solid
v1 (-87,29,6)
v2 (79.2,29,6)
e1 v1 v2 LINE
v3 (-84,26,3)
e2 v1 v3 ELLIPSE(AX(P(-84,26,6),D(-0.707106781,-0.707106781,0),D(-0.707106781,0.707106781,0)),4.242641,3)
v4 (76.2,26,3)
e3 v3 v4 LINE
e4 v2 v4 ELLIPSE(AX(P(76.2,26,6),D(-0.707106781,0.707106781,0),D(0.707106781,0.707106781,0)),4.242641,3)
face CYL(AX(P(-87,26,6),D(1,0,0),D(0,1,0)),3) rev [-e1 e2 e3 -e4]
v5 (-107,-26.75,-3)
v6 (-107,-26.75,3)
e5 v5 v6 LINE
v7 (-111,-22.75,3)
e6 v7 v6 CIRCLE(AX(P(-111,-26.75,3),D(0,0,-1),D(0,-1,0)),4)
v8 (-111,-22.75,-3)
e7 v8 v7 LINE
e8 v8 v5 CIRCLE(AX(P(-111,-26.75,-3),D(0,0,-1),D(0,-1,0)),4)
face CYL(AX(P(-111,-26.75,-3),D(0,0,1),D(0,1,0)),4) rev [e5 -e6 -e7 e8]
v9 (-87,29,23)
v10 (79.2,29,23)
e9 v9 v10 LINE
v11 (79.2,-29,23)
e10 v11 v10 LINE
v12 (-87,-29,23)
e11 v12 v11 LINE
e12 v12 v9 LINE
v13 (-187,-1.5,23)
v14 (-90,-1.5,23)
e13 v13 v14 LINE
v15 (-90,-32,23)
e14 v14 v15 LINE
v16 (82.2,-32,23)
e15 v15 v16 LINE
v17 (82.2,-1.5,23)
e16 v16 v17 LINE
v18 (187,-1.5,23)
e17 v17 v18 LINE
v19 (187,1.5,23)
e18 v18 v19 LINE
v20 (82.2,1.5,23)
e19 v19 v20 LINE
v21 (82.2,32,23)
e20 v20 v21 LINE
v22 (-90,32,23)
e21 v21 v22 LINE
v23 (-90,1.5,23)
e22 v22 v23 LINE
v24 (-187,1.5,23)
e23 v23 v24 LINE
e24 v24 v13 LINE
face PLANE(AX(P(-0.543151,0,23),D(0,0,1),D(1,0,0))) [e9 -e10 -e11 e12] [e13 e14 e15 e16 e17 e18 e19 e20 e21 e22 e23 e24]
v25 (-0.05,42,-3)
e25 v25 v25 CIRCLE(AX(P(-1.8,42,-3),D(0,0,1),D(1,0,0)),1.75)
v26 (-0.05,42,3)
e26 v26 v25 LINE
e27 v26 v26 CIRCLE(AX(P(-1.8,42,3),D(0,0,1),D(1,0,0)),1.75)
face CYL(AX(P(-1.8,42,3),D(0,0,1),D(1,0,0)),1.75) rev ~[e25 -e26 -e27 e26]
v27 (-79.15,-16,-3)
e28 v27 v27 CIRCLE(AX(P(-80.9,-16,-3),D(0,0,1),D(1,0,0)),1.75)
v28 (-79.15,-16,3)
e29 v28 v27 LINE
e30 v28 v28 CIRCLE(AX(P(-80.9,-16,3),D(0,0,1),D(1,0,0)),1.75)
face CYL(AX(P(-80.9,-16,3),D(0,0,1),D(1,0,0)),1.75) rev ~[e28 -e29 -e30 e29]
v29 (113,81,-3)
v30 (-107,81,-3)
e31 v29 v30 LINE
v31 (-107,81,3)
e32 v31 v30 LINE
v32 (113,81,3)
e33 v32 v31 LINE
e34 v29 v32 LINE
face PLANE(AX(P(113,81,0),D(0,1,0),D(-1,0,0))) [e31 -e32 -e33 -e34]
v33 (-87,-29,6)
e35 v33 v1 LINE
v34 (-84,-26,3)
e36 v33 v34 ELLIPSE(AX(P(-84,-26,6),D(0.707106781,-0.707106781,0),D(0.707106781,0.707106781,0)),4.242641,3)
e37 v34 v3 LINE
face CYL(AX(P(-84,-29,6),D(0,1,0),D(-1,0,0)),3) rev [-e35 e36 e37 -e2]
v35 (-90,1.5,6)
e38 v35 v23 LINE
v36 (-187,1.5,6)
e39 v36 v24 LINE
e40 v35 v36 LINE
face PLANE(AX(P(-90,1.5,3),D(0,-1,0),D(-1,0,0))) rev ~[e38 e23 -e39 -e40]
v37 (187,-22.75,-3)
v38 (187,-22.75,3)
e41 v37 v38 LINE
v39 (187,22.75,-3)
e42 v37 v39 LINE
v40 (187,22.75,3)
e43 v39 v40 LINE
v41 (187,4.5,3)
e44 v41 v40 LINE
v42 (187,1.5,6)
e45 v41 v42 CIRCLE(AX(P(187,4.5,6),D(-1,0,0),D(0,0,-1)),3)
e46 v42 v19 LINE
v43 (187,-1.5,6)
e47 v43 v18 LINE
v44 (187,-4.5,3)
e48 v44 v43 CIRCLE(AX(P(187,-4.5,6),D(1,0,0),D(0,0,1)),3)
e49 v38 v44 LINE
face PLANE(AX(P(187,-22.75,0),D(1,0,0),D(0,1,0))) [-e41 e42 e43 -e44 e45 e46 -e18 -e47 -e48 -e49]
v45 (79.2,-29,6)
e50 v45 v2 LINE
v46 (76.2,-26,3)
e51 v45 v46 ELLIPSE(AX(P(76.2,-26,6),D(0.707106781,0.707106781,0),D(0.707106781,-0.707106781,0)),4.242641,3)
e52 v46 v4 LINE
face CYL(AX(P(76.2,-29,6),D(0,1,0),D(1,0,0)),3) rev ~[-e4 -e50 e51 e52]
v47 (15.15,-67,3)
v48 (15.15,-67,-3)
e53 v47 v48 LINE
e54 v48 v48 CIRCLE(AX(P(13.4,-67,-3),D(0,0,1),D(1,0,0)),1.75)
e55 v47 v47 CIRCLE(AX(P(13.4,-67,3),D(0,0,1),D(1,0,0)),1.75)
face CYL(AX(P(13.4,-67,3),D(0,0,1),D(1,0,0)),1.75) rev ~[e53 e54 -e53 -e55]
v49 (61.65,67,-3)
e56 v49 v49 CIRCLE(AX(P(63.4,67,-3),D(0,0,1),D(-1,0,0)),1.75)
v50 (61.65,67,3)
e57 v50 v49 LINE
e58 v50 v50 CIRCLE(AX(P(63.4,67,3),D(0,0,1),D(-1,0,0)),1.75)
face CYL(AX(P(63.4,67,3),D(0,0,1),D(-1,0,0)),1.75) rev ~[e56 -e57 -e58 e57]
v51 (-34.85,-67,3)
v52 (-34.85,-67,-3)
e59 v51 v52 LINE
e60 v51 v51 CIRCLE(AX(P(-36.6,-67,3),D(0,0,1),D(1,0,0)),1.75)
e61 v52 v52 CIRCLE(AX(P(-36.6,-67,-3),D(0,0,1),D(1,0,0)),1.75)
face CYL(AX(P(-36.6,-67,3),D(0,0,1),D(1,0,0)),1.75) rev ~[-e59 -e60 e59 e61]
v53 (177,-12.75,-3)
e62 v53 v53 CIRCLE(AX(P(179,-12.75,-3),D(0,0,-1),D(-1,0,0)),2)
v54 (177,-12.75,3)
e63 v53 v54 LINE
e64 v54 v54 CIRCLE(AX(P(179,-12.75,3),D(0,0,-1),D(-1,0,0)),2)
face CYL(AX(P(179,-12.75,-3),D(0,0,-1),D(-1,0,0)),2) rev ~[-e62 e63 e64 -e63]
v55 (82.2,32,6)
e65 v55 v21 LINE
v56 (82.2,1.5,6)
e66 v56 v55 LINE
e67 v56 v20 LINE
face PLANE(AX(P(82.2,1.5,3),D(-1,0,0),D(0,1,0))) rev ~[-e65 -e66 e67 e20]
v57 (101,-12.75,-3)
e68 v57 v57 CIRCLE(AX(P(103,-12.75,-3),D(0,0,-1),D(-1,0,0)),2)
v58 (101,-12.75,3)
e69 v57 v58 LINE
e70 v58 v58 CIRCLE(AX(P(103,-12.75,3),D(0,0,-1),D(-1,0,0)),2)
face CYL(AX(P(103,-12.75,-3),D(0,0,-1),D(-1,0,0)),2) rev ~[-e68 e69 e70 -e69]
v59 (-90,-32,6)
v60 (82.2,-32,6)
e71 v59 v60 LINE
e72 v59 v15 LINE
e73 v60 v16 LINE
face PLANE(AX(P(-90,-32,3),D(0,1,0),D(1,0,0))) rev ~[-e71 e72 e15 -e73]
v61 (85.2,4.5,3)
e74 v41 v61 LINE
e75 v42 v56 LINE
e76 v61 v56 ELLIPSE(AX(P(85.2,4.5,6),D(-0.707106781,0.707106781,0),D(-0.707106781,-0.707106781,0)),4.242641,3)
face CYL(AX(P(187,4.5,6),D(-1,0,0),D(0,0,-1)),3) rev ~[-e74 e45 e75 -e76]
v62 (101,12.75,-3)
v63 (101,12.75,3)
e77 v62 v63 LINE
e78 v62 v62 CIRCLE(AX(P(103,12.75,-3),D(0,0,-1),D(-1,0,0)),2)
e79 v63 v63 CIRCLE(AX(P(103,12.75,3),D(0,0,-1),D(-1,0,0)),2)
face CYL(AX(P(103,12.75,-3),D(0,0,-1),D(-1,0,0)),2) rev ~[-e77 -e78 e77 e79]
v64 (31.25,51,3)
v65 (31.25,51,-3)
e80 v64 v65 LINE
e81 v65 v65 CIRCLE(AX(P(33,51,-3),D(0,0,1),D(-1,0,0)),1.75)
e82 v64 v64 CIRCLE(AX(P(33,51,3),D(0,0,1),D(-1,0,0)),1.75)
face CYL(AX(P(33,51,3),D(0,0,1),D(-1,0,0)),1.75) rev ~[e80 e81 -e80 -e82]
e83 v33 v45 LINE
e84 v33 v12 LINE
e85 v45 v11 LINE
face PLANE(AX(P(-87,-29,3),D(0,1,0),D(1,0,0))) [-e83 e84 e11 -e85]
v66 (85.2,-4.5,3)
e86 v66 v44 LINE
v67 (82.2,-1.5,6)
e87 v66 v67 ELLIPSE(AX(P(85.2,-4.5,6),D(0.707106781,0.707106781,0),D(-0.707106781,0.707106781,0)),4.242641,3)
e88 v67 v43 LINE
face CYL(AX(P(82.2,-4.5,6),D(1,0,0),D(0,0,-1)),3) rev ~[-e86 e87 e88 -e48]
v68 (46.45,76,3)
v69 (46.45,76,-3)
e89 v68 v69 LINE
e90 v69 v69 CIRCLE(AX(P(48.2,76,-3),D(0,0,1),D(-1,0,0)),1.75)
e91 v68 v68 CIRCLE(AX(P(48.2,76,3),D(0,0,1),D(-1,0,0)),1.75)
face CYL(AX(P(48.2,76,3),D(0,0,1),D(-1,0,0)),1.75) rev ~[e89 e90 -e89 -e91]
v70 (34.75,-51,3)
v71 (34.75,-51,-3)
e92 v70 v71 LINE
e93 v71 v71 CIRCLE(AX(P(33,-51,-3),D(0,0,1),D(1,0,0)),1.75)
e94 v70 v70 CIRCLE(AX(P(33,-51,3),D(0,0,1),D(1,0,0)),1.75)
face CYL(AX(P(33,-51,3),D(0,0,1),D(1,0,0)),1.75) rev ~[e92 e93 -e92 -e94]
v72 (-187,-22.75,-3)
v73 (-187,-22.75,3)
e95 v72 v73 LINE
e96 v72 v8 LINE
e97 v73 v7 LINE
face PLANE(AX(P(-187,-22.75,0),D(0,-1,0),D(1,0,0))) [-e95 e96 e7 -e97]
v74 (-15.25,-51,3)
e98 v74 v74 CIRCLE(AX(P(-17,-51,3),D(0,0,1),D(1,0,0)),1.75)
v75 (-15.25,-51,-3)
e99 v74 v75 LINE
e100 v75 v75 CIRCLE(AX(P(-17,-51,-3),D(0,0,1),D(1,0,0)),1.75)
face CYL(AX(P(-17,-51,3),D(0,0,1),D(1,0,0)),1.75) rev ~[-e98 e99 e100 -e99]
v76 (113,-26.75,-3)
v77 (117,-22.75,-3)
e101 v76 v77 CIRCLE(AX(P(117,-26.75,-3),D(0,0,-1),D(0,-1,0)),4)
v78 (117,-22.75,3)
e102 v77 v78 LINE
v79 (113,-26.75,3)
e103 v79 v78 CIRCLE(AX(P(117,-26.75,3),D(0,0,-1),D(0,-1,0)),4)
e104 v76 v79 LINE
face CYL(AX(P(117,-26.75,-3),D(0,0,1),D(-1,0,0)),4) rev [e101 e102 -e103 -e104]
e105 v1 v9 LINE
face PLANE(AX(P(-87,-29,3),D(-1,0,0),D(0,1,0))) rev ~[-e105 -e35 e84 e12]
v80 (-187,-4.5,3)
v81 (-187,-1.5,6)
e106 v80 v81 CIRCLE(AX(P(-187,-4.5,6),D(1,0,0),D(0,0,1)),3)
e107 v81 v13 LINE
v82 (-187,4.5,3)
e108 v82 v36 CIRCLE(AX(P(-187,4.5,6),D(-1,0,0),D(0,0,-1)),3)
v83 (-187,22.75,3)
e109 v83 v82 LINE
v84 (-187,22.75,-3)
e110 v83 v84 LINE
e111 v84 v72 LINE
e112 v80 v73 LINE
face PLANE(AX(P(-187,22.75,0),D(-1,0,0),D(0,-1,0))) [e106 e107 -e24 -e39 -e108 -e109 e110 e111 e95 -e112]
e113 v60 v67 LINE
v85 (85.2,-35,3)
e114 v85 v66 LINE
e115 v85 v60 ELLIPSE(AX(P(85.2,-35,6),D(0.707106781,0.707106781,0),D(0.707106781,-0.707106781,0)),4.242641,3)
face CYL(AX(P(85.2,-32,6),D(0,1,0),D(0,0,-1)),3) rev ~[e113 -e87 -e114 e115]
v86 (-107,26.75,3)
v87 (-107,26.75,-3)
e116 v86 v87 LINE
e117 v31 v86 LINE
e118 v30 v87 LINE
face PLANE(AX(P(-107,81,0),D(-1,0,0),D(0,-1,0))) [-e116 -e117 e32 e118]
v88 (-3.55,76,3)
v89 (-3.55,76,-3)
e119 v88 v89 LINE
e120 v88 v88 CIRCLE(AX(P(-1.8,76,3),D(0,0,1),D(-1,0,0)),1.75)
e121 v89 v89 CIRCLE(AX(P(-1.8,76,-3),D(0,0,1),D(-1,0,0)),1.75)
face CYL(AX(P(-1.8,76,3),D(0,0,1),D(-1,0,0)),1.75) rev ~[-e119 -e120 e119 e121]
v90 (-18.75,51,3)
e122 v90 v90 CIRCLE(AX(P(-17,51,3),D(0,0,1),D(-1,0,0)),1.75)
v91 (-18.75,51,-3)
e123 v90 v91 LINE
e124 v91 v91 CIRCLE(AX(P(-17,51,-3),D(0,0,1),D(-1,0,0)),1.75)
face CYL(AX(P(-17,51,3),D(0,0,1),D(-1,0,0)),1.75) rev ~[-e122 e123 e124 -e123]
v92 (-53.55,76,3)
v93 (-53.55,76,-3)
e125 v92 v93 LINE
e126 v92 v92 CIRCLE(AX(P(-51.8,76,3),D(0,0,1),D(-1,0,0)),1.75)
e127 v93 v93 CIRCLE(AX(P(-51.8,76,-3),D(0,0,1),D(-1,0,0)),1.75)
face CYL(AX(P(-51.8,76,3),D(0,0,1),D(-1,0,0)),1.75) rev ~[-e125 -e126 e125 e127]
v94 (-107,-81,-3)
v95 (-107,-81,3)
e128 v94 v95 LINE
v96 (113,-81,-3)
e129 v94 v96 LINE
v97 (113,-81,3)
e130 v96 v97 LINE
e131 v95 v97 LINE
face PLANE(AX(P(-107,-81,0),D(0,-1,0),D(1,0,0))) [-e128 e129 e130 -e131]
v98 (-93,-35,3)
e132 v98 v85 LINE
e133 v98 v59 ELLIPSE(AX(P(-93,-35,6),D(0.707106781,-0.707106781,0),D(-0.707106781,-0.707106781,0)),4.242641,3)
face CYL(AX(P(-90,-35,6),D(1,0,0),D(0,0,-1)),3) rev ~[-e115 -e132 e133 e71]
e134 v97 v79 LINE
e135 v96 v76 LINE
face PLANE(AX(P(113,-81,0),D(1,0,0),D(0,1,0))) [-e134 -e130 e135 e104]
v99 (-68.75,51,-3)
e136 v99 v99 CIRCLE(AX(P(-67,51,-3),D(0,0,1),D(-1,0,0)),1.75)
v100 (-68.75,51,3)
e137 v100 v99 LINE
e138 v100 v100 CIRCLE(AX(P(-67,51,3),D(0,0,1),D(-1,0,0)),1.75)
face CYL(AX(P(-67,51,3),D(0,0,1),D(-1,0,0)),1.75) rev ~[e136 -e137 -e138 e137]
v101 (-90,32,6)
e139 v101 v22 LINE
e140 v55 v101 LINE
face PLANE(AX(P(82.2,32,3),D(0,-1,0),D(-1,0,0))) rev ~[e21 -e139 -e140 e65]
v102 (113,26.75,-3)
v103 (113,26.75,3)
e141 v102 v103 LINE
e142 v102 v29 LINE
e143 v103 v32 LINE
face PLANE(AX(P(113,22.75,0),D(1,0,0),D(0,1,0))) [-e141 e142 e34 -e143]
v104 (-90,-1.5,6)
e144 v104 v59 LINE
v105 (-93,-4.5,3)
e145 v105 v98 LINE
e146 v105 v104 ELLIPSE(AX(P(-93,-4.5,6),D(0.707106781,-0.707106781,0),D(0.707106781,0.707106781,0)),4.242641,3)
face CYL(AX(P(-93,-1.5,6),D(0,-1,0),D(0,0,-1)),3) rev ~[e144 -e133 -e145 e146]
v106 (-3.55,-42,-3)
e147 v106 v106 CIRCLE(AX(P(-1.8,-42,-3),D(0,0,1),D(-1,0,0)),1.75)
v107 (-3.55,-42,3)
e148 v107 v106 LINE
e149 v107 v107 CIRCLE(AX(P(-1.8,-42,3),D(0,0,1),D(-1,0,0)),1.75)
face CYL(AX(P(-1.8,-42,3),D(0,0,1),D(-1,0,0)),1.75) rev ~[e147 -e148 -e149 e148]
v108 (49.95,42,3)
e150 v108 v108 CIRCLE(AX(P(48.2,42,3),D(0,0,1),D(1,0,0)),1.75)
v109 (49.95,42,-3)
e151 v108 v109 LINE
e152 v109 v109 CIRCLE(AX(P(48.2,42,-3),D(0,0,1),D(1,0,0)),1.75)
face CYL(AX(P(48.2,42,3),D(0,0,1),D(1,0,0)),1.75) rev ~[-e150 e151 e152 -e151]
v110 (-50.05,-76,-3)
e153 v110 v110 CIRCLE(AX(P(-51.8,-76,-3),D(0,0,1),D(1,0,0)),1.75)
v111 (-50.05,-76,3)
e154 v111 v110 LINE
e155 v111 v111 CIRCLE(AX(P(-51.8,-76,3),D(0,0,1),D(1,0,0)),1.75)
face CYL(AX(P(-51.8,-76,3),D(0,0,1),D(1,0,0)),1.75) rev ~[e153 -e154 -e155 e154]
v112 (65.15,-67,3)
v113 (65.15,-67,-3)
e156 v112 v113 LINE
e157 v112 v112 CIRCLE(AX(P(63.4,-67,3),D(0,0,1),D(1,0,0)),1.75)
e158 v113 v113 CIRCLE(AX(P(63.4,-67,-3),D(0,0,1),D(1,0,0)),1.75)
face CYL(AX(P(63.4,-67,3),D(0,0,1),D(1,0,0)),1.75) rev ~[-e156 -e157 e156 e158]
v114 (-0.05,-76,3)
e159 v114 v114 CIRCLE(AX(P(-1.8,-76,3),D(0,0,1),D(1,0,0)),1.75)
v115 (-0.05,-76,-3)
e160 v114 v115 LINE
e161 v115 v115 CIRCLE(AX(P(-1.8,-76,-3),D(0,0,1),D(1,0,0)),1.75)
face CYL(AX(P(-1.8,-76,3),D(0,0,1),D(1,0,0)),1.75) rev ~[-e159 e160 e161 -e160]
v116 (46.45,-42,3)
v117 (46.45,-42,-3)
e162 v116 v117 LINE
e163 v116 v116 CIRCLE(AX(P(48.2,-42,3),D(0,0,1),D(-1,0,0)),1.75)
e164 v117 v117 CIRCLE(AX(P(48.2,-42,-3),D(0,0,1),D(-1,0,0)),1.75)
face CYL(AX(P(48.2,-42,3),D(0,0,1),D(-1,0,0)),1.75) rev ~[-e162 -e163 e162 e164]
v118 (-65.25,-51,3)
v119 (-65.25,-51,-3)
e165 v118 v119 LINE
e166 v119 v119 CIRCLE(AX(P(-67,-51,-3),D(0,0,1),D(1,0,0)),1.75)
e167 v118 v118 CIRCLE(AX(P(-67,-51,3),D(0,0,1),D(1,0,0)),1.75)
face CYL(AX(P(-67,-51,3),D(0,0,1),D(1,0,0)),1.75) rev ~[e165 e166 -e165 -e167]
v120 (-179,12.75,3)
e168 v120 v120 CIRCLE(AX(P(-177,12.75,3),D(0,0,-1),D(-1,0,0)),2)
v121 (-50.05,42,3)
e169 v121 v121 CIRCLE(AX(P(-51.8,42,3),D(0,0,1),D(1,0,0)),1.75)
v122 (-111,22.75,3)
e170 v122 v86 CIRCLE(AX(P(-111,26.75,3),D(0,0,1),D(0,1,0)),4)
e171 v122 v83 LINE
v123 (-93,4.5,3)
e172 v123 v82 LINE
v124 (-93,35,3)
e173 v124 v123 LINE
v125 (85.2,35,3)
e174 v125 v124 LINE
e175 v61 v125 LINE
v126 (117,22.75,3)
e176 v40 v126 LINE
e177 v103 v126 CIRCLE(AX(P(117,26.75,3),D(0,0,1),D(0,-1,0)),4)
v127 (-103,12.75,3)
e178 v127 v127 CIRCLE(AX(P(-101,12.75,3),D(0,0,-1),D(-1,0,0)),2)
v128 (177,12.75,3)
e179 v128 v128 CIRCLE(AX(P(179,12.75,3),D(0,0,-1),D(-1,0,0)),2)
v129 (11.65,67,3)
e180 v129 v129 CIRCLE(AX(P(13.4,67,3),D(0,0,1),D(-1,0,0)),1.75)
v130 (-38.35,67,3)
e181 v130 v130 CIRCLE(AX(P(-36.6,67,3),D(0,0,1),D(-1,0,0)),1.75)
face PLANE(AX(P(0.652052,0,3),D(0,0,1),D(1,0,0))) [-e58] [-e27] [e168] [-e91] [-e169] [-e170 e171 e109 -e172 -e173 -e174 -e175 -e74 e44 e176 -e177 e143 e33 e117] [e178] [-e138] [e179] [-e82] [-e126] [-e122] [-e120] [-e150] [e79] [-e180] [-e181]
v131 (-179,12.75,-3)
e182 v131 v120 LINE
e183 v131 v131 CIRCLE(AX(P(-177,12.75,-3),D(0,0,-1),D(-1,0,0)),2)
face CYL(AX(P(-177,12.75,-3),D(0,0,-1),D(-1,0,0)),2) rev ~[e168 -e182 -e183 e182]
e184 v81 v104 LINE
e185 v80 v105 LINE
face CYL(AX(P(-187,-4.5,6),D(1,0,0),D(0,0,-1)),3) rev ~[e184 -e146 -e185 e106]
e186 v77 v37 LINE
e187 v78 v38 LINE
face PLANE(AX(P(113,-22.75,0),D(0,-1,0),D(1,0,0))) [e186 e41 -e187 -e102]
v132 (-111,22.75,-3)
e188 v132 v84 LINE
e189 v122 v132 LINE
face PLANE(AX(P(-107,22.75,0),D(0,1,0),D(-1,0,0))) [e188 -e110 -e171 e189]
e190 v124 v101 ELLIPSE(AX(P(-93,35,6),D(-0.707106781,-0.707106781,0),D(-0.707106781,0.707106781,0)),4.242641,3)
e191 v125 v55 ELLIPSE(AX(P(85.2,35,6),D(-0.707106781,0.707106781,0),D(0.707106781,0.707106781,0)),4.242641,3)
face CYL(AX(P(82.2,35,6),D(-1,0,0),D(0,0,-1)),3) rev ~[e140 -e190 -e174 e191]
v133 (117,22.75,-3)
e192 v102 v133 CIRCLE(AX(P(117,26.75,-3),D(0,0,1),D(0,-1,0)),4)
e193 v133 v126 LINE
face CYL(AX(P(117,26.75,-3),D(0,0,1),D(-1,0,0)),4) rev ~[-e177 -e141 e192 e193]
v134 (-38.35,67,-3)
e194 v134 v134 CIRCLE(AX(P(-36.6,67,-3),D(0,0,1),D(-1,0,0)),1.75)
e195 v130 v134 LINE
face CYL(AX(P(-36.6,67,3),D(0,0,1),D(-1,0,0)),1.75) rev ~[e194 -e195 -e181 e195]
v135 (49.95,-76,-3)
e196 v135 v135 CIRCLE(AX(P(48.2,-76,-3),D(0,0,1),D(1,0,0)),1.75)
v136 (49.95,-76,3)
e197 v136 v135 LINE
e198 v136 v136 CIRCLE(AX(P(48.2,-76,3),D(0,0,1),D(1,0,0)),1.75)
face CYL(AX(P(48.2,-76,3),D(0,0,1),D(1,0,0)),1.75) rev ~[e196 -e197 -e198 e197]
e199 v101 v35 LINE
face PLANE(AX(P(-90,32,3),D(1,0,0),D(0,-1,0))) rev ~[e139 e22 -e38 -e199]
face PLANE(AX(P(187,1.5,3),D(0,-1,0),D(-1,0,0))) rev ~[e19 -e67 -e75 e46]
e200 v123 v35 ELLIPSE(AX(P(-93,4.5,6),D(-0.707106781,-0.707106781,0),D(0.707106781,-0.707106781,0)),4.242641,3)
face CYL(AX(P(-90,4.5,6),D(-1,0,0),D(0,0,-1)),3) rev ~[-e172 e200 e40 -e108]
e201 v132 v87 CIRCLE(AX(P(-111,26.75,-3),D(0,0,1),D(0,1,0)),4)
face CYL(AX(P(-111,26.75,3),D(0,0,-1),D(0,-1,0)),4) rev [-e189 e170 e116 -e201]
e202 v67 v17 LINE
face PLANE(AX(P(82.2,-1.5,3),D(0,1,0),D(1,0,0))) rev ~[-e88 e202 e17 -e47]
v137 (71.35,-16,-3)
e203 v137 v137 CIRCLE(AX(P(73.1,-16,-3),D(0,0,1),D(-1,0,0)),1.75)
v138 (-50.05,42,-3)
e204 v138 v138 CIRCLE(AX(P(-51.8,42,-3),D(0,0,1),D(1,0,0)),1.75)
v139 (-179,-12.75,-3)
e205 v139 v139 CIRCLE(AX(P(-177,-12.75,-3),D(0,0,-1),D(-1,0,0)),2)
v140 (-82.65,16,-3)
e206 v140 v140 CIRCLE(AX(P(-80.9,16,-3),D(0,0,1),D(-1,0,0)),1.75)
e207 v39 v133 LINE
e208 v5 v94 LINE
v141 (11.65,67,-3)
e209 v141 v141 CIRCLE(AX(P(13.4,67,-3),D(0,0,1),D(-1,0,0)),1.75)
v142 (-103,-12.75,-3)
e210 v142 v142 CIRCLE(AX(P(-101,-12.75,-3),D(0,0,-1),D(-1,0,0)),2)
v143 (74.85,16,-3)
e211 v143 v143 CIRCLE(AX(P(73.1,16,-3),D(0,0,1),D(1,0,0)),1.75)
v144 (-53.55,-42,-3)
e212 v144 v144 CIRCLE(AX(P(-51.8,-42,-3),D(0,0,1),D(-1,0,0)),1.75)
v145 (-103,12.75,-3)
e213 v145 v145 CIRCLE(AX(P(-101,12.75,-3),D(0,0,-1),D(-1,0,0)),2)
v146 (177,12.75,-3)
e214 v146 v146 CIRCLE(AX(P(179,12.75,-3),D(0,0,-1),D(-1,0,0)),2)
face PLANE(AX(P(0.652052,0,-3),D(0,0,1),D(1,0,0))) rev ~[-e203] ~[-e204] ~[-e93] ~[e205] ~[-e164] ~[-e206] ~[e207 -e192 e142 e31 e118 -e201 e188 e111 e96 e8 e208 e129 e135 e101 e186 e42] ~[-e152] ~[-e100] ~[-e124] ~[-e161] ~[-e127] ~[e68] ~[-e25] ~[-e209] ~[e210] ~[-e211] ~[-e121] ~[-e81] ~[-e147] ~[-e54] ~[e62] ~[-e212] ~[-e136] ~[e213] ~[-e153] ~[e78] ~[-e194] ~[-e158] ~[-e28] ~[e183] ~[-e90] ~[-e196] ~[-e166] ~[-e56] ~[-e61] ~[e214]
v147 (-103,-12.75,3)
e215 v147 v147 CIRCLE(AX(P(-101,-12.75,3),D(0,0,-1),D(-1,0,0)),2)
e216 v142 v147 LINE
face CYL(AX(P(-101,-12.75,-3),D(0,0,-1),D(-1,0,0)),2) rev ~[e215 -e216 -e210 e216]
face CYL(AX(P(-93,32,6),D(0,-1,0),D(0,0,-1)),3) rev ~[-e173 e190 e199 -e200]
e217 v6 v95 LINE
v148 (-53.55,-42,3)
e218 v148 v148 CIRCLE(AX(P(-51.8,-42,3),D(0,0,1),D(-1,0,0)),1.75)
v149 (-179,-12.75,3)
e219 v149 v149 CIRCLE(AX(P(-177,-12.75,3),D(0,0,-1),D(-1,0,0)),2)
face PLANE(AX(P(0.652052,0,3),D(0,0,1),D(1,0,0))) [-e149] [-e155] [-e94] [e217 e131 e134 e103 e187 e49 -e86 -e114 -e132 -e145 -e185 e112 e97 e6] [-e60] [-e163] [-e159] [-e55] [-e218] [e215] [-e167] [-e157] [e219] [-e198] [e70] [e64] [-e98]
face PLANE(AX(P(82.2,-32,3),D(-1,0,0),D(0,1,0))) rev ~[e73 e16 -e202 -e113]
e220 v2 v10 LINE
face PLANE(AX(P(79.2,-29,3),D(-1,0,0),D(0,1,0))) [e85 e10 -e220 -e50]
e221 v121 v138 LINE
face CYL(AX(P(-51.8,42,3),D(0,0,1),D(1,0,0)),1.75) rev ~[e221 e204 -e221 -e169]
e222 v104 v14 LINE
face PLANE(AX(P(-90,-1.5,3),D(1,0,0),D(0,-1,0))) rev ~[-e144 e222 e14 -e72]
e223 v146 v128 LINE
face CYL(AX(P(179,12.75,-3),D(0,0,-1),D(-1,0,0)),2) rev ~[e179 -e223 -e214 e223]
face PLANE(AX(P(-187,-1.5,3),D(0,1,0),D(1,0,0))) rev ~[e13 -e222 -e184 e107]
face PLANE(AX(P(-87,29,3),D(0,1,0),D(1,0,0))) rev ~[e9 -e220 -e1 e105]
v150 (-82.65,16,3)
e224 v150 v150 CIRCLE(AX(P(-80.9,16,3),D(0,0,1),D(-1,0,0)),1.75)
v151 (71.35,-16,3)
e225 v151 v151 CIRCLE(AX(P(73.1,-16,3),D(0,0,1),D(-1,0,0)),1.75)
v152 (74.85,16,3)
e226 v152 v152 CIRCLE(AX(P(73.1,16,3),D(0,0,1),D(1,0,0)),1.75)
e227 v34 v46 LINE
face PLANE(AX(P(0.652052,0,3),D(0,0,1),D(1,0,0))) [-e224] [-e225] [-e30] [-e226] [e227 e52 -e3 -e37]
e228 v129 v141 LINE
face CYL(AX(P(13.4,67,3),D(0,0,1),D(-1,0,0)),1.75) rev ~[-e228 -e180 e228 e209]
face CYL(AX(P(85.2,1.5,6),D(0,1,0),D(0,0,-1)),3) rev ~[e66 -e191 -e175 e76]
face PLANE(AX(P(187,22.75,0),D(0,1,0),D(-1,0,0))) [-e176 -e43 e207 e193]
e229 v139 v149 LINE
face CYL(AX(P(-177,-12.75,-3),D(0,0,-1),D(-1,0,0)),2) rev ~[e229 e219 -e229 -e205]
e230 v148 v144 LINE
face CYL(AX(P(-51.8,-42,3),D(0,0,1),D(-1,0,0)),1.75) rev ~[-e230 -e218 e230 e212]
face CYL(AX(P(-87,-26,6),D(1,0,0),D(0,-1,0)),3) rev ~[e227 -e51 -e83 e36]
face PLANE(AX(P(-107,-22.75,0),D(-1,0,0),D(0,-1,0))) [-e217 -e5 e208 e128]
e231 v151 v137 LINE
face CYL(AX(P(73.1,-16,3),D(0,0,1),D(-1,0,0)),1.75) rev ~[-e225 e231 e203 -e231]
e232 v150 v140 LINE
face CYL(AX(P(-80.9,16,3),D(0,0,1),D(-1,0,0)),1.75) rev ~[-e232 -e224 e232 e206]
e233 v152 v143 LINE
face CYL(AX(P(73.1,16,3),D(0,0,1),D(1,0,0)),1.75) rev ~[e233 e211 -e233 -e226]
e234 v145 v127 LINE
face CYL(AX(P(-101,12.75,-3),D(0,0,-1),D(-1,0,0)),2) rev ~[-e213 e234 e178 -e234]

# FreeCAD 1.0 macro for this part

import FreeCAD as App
import Part
import Sketcher

V = App.Vector


def edges_at(feature, points):
    """Names of the edges that pass closest to the given points."""
    edges = feature.Shape.Edges
    near = lambda p: min(range(len(edges)), key=lambda i: edges[i].distToShape(Part.Vertex(*p))[0])
    return sorted({f"Edge{near(p) + 1}" for p in points})

doc = App.newDocument("Part")
body = doc.addObject("PartDesign::Body", "Body")

sketch1 = body.newObject("Sketcher::SketchObject", "Sketch")
sketch1.AttachmentSupport = (doc.getObject("XY_Plane"), [""])
sketch1.MapMode = "FlatFace"
sketch1.addGeometry([
    Part.LineSegment(V(-187, 23, 0), V(-187, -23, 0)),
    Part.LineSegment(V(-187, -23, 0), V(-107, -23, 0)),
    Part.LineSegment(V(-107, -23, 0), V(-107, -81, 0)),
    Part.LineSegment(V(-107, -81, 0), V(113, -81, 0)),
    Part.LineSegment(V(113, -81, 0), V(113, -23, 0)),
    Part.LineSegment(V(113, -23, 0), V(187, -23, 0)),
    Part.LineSegment(V(187, -23, 0), V(187, 23, 0)),
    Part.LineSegment(V(187, 23, 0), V(113, 23, 0)),
    Part.LineSegment(V(113, 23, 0), V(113, 81, 0)),
    Part.LineSegment(V(113, 81, 0), V(-107, 81, 0)),
    Part.LineSegment(V(-107, 81, 0), V(-107, 23, 0)),
    Part.LineSegment(V(-107, 23, 0), V(-187, 23, 0)),
], False)
sketch1.addConstraint([
    Sketcher.Constraint("Coincident", 0, 2, 1, 1),
    Sketcher.Constraint("Coincident", 1, 2, 2, 1),
    Sketcher.Constraint("Coincident", 2, 2, 3, 1),
    Sketcher.Constraint("Coincident", 3, 2, 4, 1),
    Sketcher.Constraint("Coincident", 4, 2, 5, 1),
    Sketcher.Constraint("Coincident", 5, 2, 6, 1),
    Sketcher.Constraint("Coincident", 6, 2, 7, 1),
    Sketcher.Constraint("Coincident", 7, 2, 8, 1),
    Sketcher.Constraint("Coincident", 8, 2, 9, 1),
    Sketcher.Constraint("Coincident", 9, 2, 10, 1),
    Sketcher.Constraint("Coincident", 10, 2, 11, 1),
    Sketcher.Constraint("Coincident", 11, 2, 0, 1),
    Sketcher.Constraint("Vertical", 0),
    Sketcher.Constraint("Horizontal", 1),
    Sketcher.Constraint("Vertical", 2),
    Sketcher.Constraint("Horizontal", 3),
    Sketcher.Constraint("Vertical", 4),
    Sketcher.Constraint("Horizontal", 5),
    Sketcher.Constraint("Vertical", 6),
    Sketcher.Constraint("Horizontal", 7),
    Sketcher.Constraint("Vertical", 8),
    Sketcher.Constraint("Horizontal", 9),
    Sketcher.Constraint("Vertical", 10),
    Sketcher.Constraint("Horizontal", 11),
    Sketcher.Constraint("Symmetric", 0, 2, 6, 2, -1, 1),
    Sketcher.Constraint("Symmetric", 4, 2, 7, 2, -1),
    Sketcher.Constraint("Symmetric", 2, 2, 9, 2, -1),
    Sketcher.Constraint("Horizontal", 7, 2, 10, 2),
    Sketcher.Constraint("DistanceX", 1, 1, 1, 2, 80.0),
    Sketcher.Constraint("DistanceX", 3, 1, 3, 2, 220.0),
    Sketcher.Constraint("DistanceX", 5, 1, 5, 2, 74.0),
    Sketcher.Constraint("DistanceY", 0, 2, 0, 1, 45.5),
    Sketcher.Constraint("DistanceY", 2, 2, -1, 1, 81.0),
])
pad1 = body.newObject("PartDesign::Pad", "Pad")
pad1.Profile = sketch1
pad1.Length = 6
pad1.Midplane = True

sketch2 = body.newObject("Sketcher::SketchObject", "Sketch001")
sketch2.AttachmentSupport = (doc.getObject("XY_Plane"), [""])
sketch2.MapMode = "FlatFace"
sketch2.AttachmentOffset = App.Placement(V(0, 0, 3), App.Rotation())
sketch2.addGeometry([
    Part.LineSegment(V(-187, -1.5, 0), V(-90, -1.5, 0)),
    Part.LineSegment(V(-90, -1.5, 0), V(-90, -32, 0)),
    Part.LineSegment(V(-90, -32, 0), V(82.2, -32, 0)),
    Part.LineSegment(V(82.2, -32, 0), V(82.2, -1.5, 0)),
    Part.LineSegment(V(82.2, -1.5, 0), V(187, -1.5, 0)),
    Part.LineSegment(V(187, -1.5, 0), V(187, 1.5, 0)),
    Part.LineSegment(V(187, 1.5, 0), V(82.2, 1.5, 0)),
    Part.LineSegment(V(82.2, 1.5, 0), V(82.2, 32, 0)),
    Part.LineSegment(V(82.2, 32, 0), V(-90, 32, 0)),
    Part.LineSegment(V(-90, 32, 0), V(-90, 1.5, 0)),
    Part.LineSegment(V(-90, 1.5, 0), V(-187, 1.5, 0)),
    Part.LineSegment(V(-187, 1.5, 0), V(-187, -1.5, 0)),
    Part.LineSegment(V(79.2, -29, 0), V(-87, -29, 0)),
    Part.LineSegment(V(-87, -29, 0), V(-87, 29, 0)),
    Part.LineSegment(V(-87, 29, 0), V(79.2, 29, 0)),
    Part.LineSegment(V(79.2, 29, 0), V(79.2, -29, 0)),
], False)
sketch2.addConstraint([
    Sketcher.Constraint("Coincident", 0, 2, 1, 1),
    Sketcher.Constraint("Coincident", 1, 2, 2, 1),
    Sketcher.Constraint("Coincident", 2, 2, 3, 1),
    Sketcher.Constraint("Coincident", 3, 2, 4, 1),
    Sketcher.Constraint("Coincident", 4, 2, 5, 1),
    Sketcher.Constraint("Coincident", 5, 2, 6, 1),
    Sketcher.Constraint("Coincident", 6, 2, 7, 1),
    Sketcher.Constraint("Coincident", 7, 2, 8, 1),
    Sketcher.Constraint("Coincident", 8, 2, 9, 1),
    Sketcher.Constraint("Coincident", 9, 2, 10, 1),
    Sketcher.Constraint("Coincident", 10, 2, 11, 1),
    Sketcher.Constraint("Coincident", 11, 2, 0, 1),
    Sketcher.Constraint("Coincident", 12, 2, 13, 1),
    Sketcher.Constraint("Coincident", 13, 2, 14, 1),
    Sketcher.Constraint("Coincident", 14, 2, 15, 1),
    Sketcher.Constraint("Coincident", 15, 2, 12, 1),
    Sketcher.Constraint("Horizontal", 0),
    Sketcher.Constraint("Vertical", 1),
    Sketcher.Constraint("Horizontal", 2),
    Sketcher.Constraint("Vertical", 3),
    Sketcher.Constraint("Horizontal", 4),
    Sketcher.Constraint("Vertical", 5),
    Sketcher.Constraint("Horizontal", 6),
    Sketcher.Constraint("Vertical", 7),
    Sketcher.Constraint("Horizontal", 8),
    Sketcher.Constraint("Vertical", 9),
    Sketcher.Constraint("Horizontal", 10),
    Sketcher.Constraint("Vertical", 11),
    Sketcher.Constraint("Horizontal", 12),
    Sketcher.Constraint("Vertical", 13),
    Sketcher.Constraint("Horizontal", 14),
    Sketcher.Constraint("Vertical", 15),
    Sketcher.Constraint("Symmetric", 4, 2, 10, 2, -1, 1),
    Sketcher.Constraint("Symmetric", 3, 2, 6, 2, -1),
    Sketcher.Constraint("Symmetric", 1, 2, 8, 2, -1),
    Sketcher.Constraint("Horizontal", 0, 2, 3, 2),
    Sketcher.Constraint("DistanceX", 0, 1, 0, 2, 97.0),
    Sketcher.Constraint("DistanceY", 5, 1, 5, 2, 3.0),
    Sketcher.Constraint("DistanceY", 13, 1, 13, 2, 58.0),
    Sketcher.Constraint("DistanceX", 2, 1, 2, 2, 172.2),
    Sketcher.Constraint("DistanceX", 4, 1, 4, 2, 104.8),
    Sketcher.Constraint("DistanceX", 12, 2, 12, 1, 166.2),
    Sketcher.Constraint("DistanceY", 1, 2, 1, 1, 30.5),
    Sketcher.Constraint("DistanceX", 12, 2, -1, 1, 87.0),
    Sketcher.Constraint("DistanceY", 12, 2, -1, 1, 29.0),
])
pad2 = body.newObject("PartDesign::Pad", "Pad001")
pad2.Profile = sketch2
pad2.Length = 20

sketch3 = body.newObject("Sketcher::SketchObject", "Sketch002")
sketch3.AttachmentSupport = (doc.getObject("XY_Plane"), [""])
sketch3.MapMode = "FlatFace"
sketch3.AttachmentOffset = App.Placement(V(0, 0, 3), App.Rotation())
sketch3.addGeometry([
    Part.Circle(V(-36.6, -67, 0), V(0, 0, 1), 1.8),
    Part.Circle(V(-67, -51, 0), V(0, 0, 1), 1.8),
    Part.Circle(V(13.4, -67, 0), V(0, 0, 1), 1.8),
    Part.Circle(V(-17, -51, 0), V(0, 0, 1), 1.8),
    Part.Circle(V(63.4, -67, 0), V(0, 0, 1), 1.8),
    Part.Circle(V(33, -51, 0), V(0, 0, 1), 1.8),
    Part.Circle(V(33, 51, 0), V(0, 0, 1), 1.8),
    Part.Circle(V(63.4, 67, 0), V(0, 0, 1), 1.8),
    Part.Circle(V(-17, 51, 0), V(0, 0, 1), 1.8),
    Part.Circle(V(13.4, 67, 0), V(0, 0, 1), 1.8),
    Part.Circle(V(-67, 51, 0), V(0, 0, 1), 1.8),
    Part.Circle(V(-36.6, 67, 0), V(0, 0, 1), 1.8),
], False)
sketch3.addConstraint([
    Sketcher.Constraint("Equal", 0, 1),
    Sketcher.Constraint("Equal", 1, 2),
    Sketcher.Constraint("Equal", 2, 3),
    Sketcher.Constraint("Equal", 3, 4),
    Sketcher.Constraint("Equal", 4, 5),
    Sketcher.Constraint("Equal", 5, 6),
    Sketcher.Constraint("Equal", 6, 7),
    Sketcher.Constraint("Equal", 7, 8),
    Sketcher.Constraint("Equal", 8, 9),
    Sketcher.Constraint("Equal", 9, 10),
    Sketcher.Constraint("Equal", 10, 11),
    Sketcher.Constraint("Symmetric", 5, 3, 6, 3, -1),
    Sketcher.Constraint("Symmetric", 4, 3, 7, 3, -1),
    Sketcher.Constraint("Symmetric", 3, 3, 8, 3, -1),
    Sketcher.Constraint("Symmetric", 2, 3, 9, 3, -1),
    Sketcher.Constraint("Symmetric", 1, 3, 10, 3, -1),
    Sketcher.Constraint("Symmetric", 0, 3, 11, 3, -1),
    Sketcher.Constraint("Horizontal", 0, 3, 2, 3),
    Sketcher.Constraint("Horizontal", 1, 3, 3, 3),
    Sketcher.Constraint("Horizontal", 2, 3, 4, 3),
    Sketcher.Constraint("Horizontal", 3, 3, 5, 3),
    Sketcher.Constraint("Diameter", 0, 3.5),
    Sketcher.Constraint("DistanceY", 0, 3, -1, 1, 67.0),
    Sketcher.Constraint("DistanceX", 1, 3, -1, 1, 67.0),
    Sketcher.Constraint("DistanceY", 1, 3, -1, 1, 51.0),
    Sketcher.Constraint("DistanceX", 3, 3, -1, 1, 17.0),
    Sketcher.Constraint("DistanceX", -1, 1, 5, 3, 33.0),
    Sketcher.Constraint("DistanceX", 0, 3, 2, 3, 50.0),
    Sketcher.Constraint("DistanceX", 2, 3, 4, 3, 50.0),
    Sketcher.Constraint("DistanceX", 0, 3, -1, 1, 36.6),
])
pocket1 = body.newObject("PartDesign::Pocket", "Pocket")
pocket1.Profile = sketch3
pocket1.Type = "ThroughAll"
doc.recompute()

fillet = body.newObject("PartDesign::Fillet", "Fillet")
fillet.Base = (pocket1, edges_at(pocket1, [
    (-107, -22.75, 0),
    (-107, 22.75, 0),
    (113, 22.75, 0),
    (113, -22.75, 0),
]))
fillet.Radius = 4
doc.recompute()

fillet2 = body.newObject("PartDesign::Fillet", "Fillet001")
fillet2.Base = (fillet, edges_at(fillet, [
    (-87, 0, 3),
    (-3.9, -29, 3),
    (79.2, 0, 3),
    (-3.9, 29, 3),
    (-138.5, -1.5, 3),
    (-90, -16.75, 3),
    (-3.9, -32, 3),
    (82.2, -16.75, 3),
    (134.6, -1.5, 3),
    (134.6, 1.5, 3),
    (82.2, 16.75, 3),
    (-3.9, 32, 3),
    (-90, 16.75, 3),
    (-138.5, 1.5, 3),
]))
fillet2.Radius = 3

sketch4 = body.newObject("Sketcher::SketchObject", "Sketch003")
sketch4.AttachmentSupport = (doc.getObject("XY_Plane"), [""])
sketch4.MapMode = "FlatFace"
sketch4.AttachmentOffset = App.Placement(V(0, 0, -3), App.Rotation())
sketch4.addGeometry(Part.Circle(V(103, -12.8, 0), V(0, 0, 1), 2), False)
sketch4.addConstraint([
    Sketcher.Constraint("Diameter", 0, 4.0),
    Sketcher.Constraint("DistanceX", -1, 1, 0, 3, 103.0),
    Sketcher.Constraint("DistanceY", 0, 3, -1, 1, 12.75),
])
pocket2 = body.newObject("PartDesign::Pocket", "Pocket001")
pocket2.Profile = sketch4
pocket2.Type = "UpToFirst"
pocket2.Reversed = True

sketch5 = body.newObject("Sketcher::SketchObject", "Sketch004")
sketch5.AttachmentSupport = (doc.getObject("XY_Plane"), [""])
sketch5.MapMode = "FlatFace"
sketch5.AttachmentOffset = App.Placement(V(0, 0, -3), App.Rotation())
sketch5.addGeometry(Part.Circle(V(103, 12.8, 0), V(0, 0, 1), 2), False)
sketch5.addConstraint([
    Sketcher.Constraint("Diameter", 0, 4.0),
    Sketcher.Constraint("DistanceX", -1, 1, 0, 3, 103.0),
    Sketcher.Constraint("DistanceY", -1, 1, 0, 3, 12.75),
])
pocket3 = body.newObject("PartDesign::Pocket", "Pocket002")
pocket3.Profile = sketch5
pocket3.Type = "UpToFirst"
pocket3.Reversed = True

sketch6 = body.newObject("Sketcher::SketchObject", "Sketch005")
sketch6.AttachmentSupport = (doc.getObject("XY_Plane"), [""])
sketch6.MapMode = "FlatFace"
sketch6.AttachmentOffset = App.Placement(V(0, 0, -3), App.Rotation())
sketch6.addGeometry(Part.Circle(V(179, 12.8, 0), V(0, 0, 1), 2), False)
sketch6.addConstraint([
    Sketcher.Constraint("Diameter", 0, 4.0),
    Sketcher.Constraint("DistanceX", -1, 1, 0, 3, 179.0),
    Sketcher.Constraint("DistanceY", -1, 1, 0, 3, 12.75),
])
pocket4 = body.newObject("PartDesign::Pocket", "Pocket003")
pocket4.Profile = sketch6
pocket4.Type = "UpToFirst"
pocket4.Reversed = True

sketch7 = body.newObject("Sketcher::SketchObject", "Sketch006")
sketch7.AttachmentSupport = (doc.getObject("XY_Plane"), [""])
sketch7.MapMode = "FlatFace"
sketch7.AttachmentOffset = App.Placement(V(0, 0, -3), App.Rotation())
sketch7.addGeometry(Part.Circle(V(179, -12.8, 0), V(0, 0, 1), 2), False)
sketch7.addConstraint([
    Sketcher.Constraint("Diameter", 0, 4.0),
    Sketcher.Constraint("DistanceX", -1, 1, 0, 3, 179.0),
    Sketcher.Constraint("DistanceY", 0, 3, -1, 1, 12.75),
])
pocket5 = body.newObject("PartDesign::Pocket", "Pocket004")
pocket5.Profile = sketch7
pocket5.Type = "UpToFirst"
pocket5.Reversed = True

sketch8 = body.newObject("Sketcher::SketchObject", "Sketch007")
sketch8.AttachmentSupport = (doc.getObject("XY_Plane"), [""])
sketch8.MapMode = "FlatFace"
sketch8.AttachmentOffset = App.Placement(V(0, 0, -3), App.Rotation())
sketch8.addGeometry(Part.Circle(V(-177, 12.8, 0), V(0, 0, 1), 2), False)
sketch8.addConstraint([
    Sketcher.Constraint("Diameter", 0, 4.0),
    Sketcher.Constraint("DistanceX", 0, 3, -1, 1, 177.0),
    Sketcher.Constraint("DistanceY", -1, 1, 0, 3, 12.75),
])
pocket6 = body.newObject("PartDesign::Pocket", "Pocket005")
pocket6.Profile = sketch8
pocket6.Type = "UpToFirst"
pocket6.Reversed = True

sketch9 = body.newObject("Sketcher::SketchObject", "Sketch008")
sketch9.AttachmentSupport = (doc.getObject("XY_Plane"), [""])
sketch9.MapMode = "FlatFace"
sketch9.AttachmentOffset = App.Placement(V(0, 0, -3), App.Rotation())
sketch9.addGeometry(Part.Circle(V(-177, -12.8, 0), V(0, 0, 1), 2), False)
sketch9.addConstraint([
    Sketcher.Constraint("Diameter", 0, 4.0),
    Sketcher.Constraint("DistanceX", 0, 3, -1, 1, 177.0),
    Sketcher.Constraint("DistanceY", 0, 3, -1, 1, 12.75),
])
pocket7 = body.newObject("PartDesign::Pocket", "Pocket006")
pocket7.Profile = sketch9
pocket7.Type = "UpToFirst"
pocket7.Reversed = True

sketch10 = body.newObject("Sketcher::SketchObject", "Sketch009")
sketch10.AttachmentSupport = (doc.getObject("XY_Plane"), [""])
sketch10.MapMode = "FlatFace"
sketch10.AttachmentOffset = App.Placement(V(0, 0, -3), App.Rotation())
sketch10.addGeometry(Part.Circle(V(-101, -12.8, 0), V(0, 0, 1), 2), False)
sketch10.addConstraint([
    Sketcher.Constraint("Diameter", 0, 4.0),
    Sketcher.Constraint("DistanceX", 0, 3, -1, 1, 101.0),
    Sketcher.Constraint("DistanceY", 0, 3, -1, 1, 12.75),
])
pocket8 = body.newObject("PartDesign::Pocket", "Pocket007")
pocket8.Profile = sketch10
pocket8.Type = "UpToFirst"
pocket8.Reversed = True

sketch11 = body.newObject("Sketcher::SketchObject", "Sketch010")
sketch11.AttachmentSupport = (doc.getObject("XY_Plane"), [""])
sketch11.MapMode = "FlatFace"
sketch11.AttachmentOffset = App.Placement(V(0, 0, -3), App.Rotation())
sketch11.addGeometry(Part.Circle(V(-101, 12.8, 0), V(0, 0, 1), 2), False)
sketch11.addConstraint([
    Sketcher.Constraint("Diameter", 0, 4.0),
    Sketcher.Constraint("DistanceX", 0, 3, -1, 1, 101.0),
    Sketcher.Constraint("DistanceY", -1, 1, 0, 3, 12.75),
])
pocket9 = body.newObject("PartDesign::Pocket", "Pocket008")
pocket9.Profile = sketch11
pocket9.Type = "UpToFirst"
pocket9.Reversed = True

sketch12 = body.newObject("Sketcher::SketchObject", "Sketch011")
sketch12.AttachmentSupport = (doc.getObject("XY_Plane"), [""])
sketch12.MapMode = "FlatFace"
sketch12.AttachmentOffset = App.Placement(V(0, 0, 3), App.Rotation())
sketch12.addGeometry([
    Part.Circle(V(-51.8, -76, 0), V(0, 0, 1), 1.8),
    Part.Circle(V(-51.8, -42, 0), V(0, 0, 1), 1.8),
    Part.Circle(V(-1.8, -76, 0), V(0, 0, 1), 1.8),
    Part.Circle(V(-1.8, -42, 0), V(0, 0, 1), 1.8),
    Part.Circle(V(48.2, -76, 0), V(0, 0, 1), 1.8),
    Part.Circle(V(48.2, -42, 0), V(0, 0, 1), 1.8),
    Part.Circle(V(48.2, 42, 0), V(0, 0, 1), 1.8),
    Part.Circle(V(48.2, 76, 0), V(0, 0, 1), 1.8),
    Part.Circle(V(-1.8, 42, 0), V(0, 0, 1), 1.8),
    Part.Circle(V(-1.8, 76, 0), V(0, 0, 1), 1.8),
    Part.Circle(V(-51.8, 42, 0), V(0, 0, 1), 1.8),
    Part.Circle(V(-51.8, 76, 0), V(0, 0, 1), 1.8),
], False)
sketch12.addConstraint([
    Sketcher.Constraint("Equal", 0, 1),
    Sketcher.Constraint("Equal", 1, 2),
    Sketcher.Constraint("Equal", 2, 3),
    Sketcher.Constraint("Equal", 3, 4),
    Sketcher.Constraint("Equal", 4, 5),
    Sketcher.Constraint("Equal", 5, 6),
    Sketcher.Constraint("Equal", 6, 7),
    Sketcher.Constraint("Equal", 7, 8),
    Sketcher.Constraint("Equal", 8, 9),
    Sketcher.Constraint("Equal", 9, 10),
    Sketcher.Constraint("Equal", 10, 11),
    Sketcher.Constraint("Symmetric", 5, 3, 6, 3, -1),
    Sketcher.Constraint("Symmetric", 4, 3, 7, 3, -1),
    Sketcher.Constraint("Symmetric", 3, 3, 8, 3, -1),
    Sketcher.Constraint("Symmetric", 2, 3, 9, 3, -1),
    Sketcher.Constraint("Symmetric", 1, 3, 10, 3, -1),
    Sketcher.Constraint("Symmetric", 0, 3, 11, 3, -1),
    Sketcher.Constraint("Horizontal", 0, 3, 2, 3),
    Sketcher.Constraint("Horizontal", 1, 3, 3, 3),
    Sketcher.Constraint("Horizontal", 2, 3, 4, 3),
    Sketcher.Constraint("Horizontal", 3, 3, 5, 3),
    Sketcher.Constraint("Vertical", 0, 3, 1, 3),
    Sketcher.Constraint("Vertical", 2, 3, 3, 3),
    Sketcher.Constraint("Vertical", 4, 3, 5, 3),
    Sketcher.Constraint("Diameter", 0, 3.5),
    Sketcher.Constraint("DistanceY", 0, 3, -1, 1, 76.0),
    Sketcher.Constraint("DistanceY", 1, 3, -1, 1, 42.0),
    Sketcher.Constraint("DistanceX", 0, 3, 2, 3, 50.0),
    Sketcher.Constraint("DistanceX", 2, 3, 4, 3, 50.0),
    Sketcher.Constraint("DistanceX", 0, 3, -1, 1, 51.8),
])
pocket10 = body.newObject("PartDesign::Pocket", "Pocket009")
pocket10.Profile = sketch12
pocket10.Type = "ThroughAll"

sketch13 = body.newObject("Sketcher::SketchObject", "Sketch012")
sketch13.AttachmentSupport = (doc.getObject("XY_Plane"), [""])
sketch13.MapMode = "FlatFace"
sketch13.AttachmentOffset = App.Placement(V(0, 0, 3), App.Rotation())
sketch13.addGeometry([
    Part.Circle(V(-80.9, -16, 0), V(0, 0, 1), 1.8),
    Part.Circle(V(-80.9, 16, 0), V(0, 0, 1), 1.8),
    Part.Circle(V(73.1, 16, 0), V(0, 0, 1), 1.8),
    Part.Circle(V(73.1, -16, 0), V(0, 0, 1), 1.8),
], False)
sketch13.addConstraint([
    Sketcher.Constraint("Equal", 0, 1),
    Sketcher.Constraint("Equal", 1, 2),
    Sketcher.Constraint("Equal", 2, 3),
    Sketcher.Constraint("Symmetric", 0, 3, 1, 3, -1),
    Sketcher.Constraint("Symmetric", 2, 3, 3, 3, -1),
    Sketcher.Constraint("Horizontal", 1, 3, 2, 3),
    Sketcher.Constraint("Diameter", 0, 3.5),
    Sketcher.Constraint("DistanceY", 0, 3, -1, 1, 16.0),
    Sketcher.Constraint("DistanceX", 1, 3, 2, 3, 154.0),
    Sketcher.Constraint("DistanceX", 0, 3, -1, 1, 80.9),
])
pocket11 = body.newObject("PartDesign::Pocket", "Pocket010")
pocket11.Profile = sketch13
pocket11.Type = "ThroughAll"

doc.recompute()
